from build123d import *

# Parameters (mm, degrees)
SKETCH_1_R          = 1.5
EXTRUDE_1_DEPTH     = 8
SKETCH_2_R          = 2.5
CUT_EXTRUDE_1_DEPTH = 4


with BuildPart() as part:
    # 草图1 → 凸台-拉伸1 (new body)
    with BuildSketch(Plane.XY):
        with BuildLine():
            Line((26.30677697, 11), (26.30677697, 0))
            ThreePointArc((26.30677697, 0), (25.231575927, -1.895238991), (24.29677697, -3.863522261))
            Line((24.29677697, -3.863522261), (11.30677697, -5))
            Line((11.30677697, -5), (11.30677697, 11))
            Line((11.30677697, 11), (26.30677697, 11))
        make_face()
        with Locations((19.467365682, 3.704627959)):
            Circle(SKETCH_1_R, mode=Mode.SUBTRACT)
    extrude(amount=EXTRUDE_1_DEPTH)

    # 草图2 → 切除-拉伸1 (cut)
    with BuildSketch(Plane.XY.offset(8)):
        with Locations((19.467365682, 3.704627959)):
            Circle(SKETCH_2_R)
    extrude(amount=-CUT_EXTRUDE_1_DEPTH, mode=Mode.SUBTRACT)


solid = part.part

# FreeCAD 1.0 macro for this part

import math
import FreeCAD as App
import Part
import Sketcher
from FreeCAD import Vector
Q = App.Units.Quantity

doc = App.newDocument("Part")
body = doc.addObject("PartDesign::Body", "Body")

sketch1 = body.newObject("Sketcher::SketchObject", "Sketch")
sketch1.AttachmentSupport = (doc.getObject("XY_Plane"), [""])
sketch1.MapMode = "FlatFace"
sketch1.addGeometry(Part.LineSegment(Vector(26.3, 0, 0), Vector(26.3, 11, 0)), False)
sketch1.addGeometry(Part.LineSegment(Vector(26.3, 11, 0), Vector(11.3, 11, 0)), False)
sketch1.addGeometry(Part.LineSegment(Vector(11.3, 11, 0), Vector(11.3, -5, 0)), False)
sketch1.addGeometry(Part.LineSegment(Vector(11.3, -5, 0), Vector(24.3, -3.9, 0)), False)
sketch1.addGeometry(Part.ArcOfCircle(Part.Circle(Vector(51.8, -15.7, 0), Vector(0, 0, 1), 30), math.radians(148.35), math.radians(156.68)), False)
sketch1.addGeometry(Part.Circle(Vector(19.5, 3.7, 0), Vector(0, 0, 1), 1.5), False)
sketch1.addConstraint(Sketcher.Constraint("Coincident", 0, 2, 1, 1))
sketch1.addConstraint(Sketcher.Constraint("Coincident", 1, 2, 2, 1))
sketch1.addConstraint(Sketcher.Constraint("Coincident", 2, 2, 3, 1))
sketch1.addConstraint(Sketcher.Constraint("Coincident", 3, 2, 4, 2))
sketch1.addConstraint(Sketcher.Constraint("Coincident", 4, 1, 0, 1))
sketch1.addConstraint(Sketcher.Constraint("Vertical", 0))
sketch1.addConstraint(Sketcher.Constraint("Horizontal", 1))
sketch1.addConstraint(Sketcher.Constraint("Vertical", 2))
sketch1.addConstraint(Sketcher.Constraint("PointOnObject", 4, 1, -1))
sketch1.addConstraint(Sketcher.Constraint("Diameter", 5, Q("3 mm")))
sketch1.addConstraint(Sketcher.Constraint("Radius", 4, Q("30 mm")))
sketch1.addConstraint(Sketcher.Constraint("DistanceX", 1, 2, 1, 1, Q("15 mm")))
sketch1.addConstraint(Sketcher.Constraint("DistanceY", 0, 1, 0, 2, Q("11 mm")))
sketch1.addConstraint(Sketcher.Constraint("DistanceY", 2, 2, 2, 1, Q("16 mm")))
sketch1.addConstraint(Sketcher.Constraint("Angle", 3, Q("5 deg")))
sketch1.addConstraint(Sketcher.Constraint("DistanceX", 2, 2, 3, 2, Q("12.99 mm")))
sketch1.addConstraint(Sketcher.Constraint("DistanceY", 4, 3, 5, 3, Q("19.4457 mm")))
sketch1.addConstraint(Sketcher.Constraint("DistanceX", -1, 1, 4, 3, Q("51.845349 mm")))
sketch1.addConstraint(Sketcher.Constraint("DistanceX", 5, 3, 0, 2, Q("6.839411 mm")))
pad1 = body.newObject("PartDesign::Pad", "Pad")
pad1.Profile = sketch1
pad1.Length = 8

sketch2 = body.newObject("Sketcher::SketchObject", "Sketch001")
sketch2.AttachmentSupport = (doc.getObject("XY_Plane"), [""])
sketch2.MapMode = "FlatFace"
sketch2.AttachmentOffset = App.Placement(Vector(0, 0, 8), App.Rotation())
sketch2.addGeometry(Part.Circle(Vector(19.5, 3.7, 0), Vector(0, 0, 1), 2.5), False)
sketch2.addConstraint(Sketcher.Constraint("Diameter", 0, Q("5 mm")))
sketch2.addConstraint(Sketcher.Constraint("DistanceX", -1, 1, 0, 3, Q("19.467366 mm")))
sketch2.addConstraint(Sketcher.Constraint("DistanceY", -1, 1, 0, 3, Q("3.704628 mm")))
pocket1 = body.newObject("PartDesign::Pocket", "Pocket")
pocket1.Profile = sketch2
pocket1.Length = 4

doc.recompute()
